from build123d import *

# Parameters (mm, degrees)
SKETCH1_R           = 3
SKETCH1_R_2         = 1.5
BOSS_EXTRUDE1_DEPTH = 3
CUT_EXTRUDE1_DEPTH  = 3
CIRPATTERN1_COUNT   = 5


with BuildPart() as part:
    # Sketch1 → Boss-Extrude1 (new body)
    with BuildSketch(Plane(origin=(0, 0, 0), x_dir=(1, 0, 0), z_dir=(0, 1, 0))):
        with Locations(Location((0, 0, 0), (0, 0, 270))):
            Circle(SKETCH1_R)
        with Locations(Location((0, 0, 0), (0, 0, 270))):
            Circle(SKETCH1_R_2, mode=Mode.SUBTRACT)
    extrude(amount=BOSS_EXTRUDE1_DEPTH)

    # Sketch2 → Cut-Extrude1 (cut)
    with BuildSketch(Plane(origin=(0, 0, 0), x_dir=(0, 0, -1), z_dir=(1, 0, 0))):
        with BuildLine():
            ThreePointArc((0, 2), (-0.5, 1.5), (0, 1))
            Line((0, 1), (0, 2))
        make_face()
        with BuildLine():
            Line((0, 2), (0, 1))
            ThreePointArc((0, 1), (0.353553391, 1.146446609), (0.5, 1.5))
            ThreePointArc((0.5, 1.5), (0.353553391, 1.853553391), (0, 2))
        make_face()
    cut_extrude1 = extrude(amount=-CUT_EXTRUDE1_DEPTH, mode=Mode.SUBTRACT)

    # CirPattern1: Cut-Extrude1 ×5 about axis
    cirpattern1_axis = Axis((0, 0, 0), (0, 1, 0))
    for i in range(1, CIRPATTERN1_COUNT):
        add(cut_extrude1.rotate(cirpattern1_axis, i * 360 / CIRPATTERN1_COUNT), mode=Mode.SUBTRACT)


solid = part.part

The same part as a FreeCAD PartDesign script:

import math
import FreeCAD as App
import Part
import Sketcher

V = App.Vector
Q = App.Units.Quantity

doc = App.newDocument("Part")
body = doc.addObject("PartDesign::Body", "Body")

sketch1 = body.newObject("Sketcher::SketchObject", "Sketch")
sketch1.AttachmentSupport = (doc.getObject("XZ_Plane"), [""])
sketch1.MapMode = "FlatFace"
sketch1.addGeometry([
    Part.Circle(V(0, 0, 0), V(0, 0, 1), 3),
    Part.Circle(V(0, 0, 0), V(0, 0, 1), 1.5),
], False)
sketch1.addConstraint([
    Sketcher.Constraint("Coincident", 0, 3, -1, 1),
    Sketcher.Constraint("Coincident", 1, 3, -1, 1),
    Sketcher.Constraint("Diameter", 0, Q("6 mm")),
    Sketcher.Constraint("Diameter", 1, Q("3 mm")),
])
pad1 = body.newObject("PartDesign::Pad", "Pad")
pad1.Profile = sketch1
pad1.Length = 3
pad1.Reversed = True

sketch2 = body.newObject("Sketcher::SketchObject", "Sketch001")
sketch2.AttachmentSupport = (doc.getObject("YZ_Plane"), [""])
sketch2.MapMode = "FlatFace"
sketch2.addGeometry([
    Part.ArcOfCircle(Part.Circle(V(1.5, 0, 0), V(0, 0, 1), 0.5), math.radians(0), math.radians(180)),
    Part.ArcOfCircle(Part.Circle(V(1.5, 0, 0), V(0, 0, 1), 0.5), math.radians(180), math.radians(270)),
    Part.ArcOfCircle(Part.Circle(V(1.5, 0, 0), V(0, 0, 1), 0.5), math.radians(-90), math.radians(0)),
], False)
sketch2.addConstraint([
    Sketcher.Constraint("Tangent", 0, 2, 1, 1),
    Sketcher.Constraint("Tangent", 1, 2, 2, 1),
    Sketcher.Constraint("Tangent", 2, 2, 0, 1),
    Sketcher.Constraint("PointOnObject", 0, 3, -1),
    Sketcher.Constraint("PointOnObject", 0, 2, -1),
    Sketcher.Constraint("PointOnObject", 2, 2, -1),
    Sketcher.Constraint("Vertical", 2, 3, 1, 2),
    Sketcher.Constraint("Radius", 0, Q("0.5 mm")),
    Sketcher.Constraint("DistanceX", -1, 1, 0, 2, Q("1 mm")),
])
pocket1 = body.newObject("PartDesign::Pocket", "Pocket")
pocket1.Profile = sketch2
pocket1.Length = 3
doc.recompute()

polarpattern = body.newObject("PartDesign::PolarPattern", "PolarPattern")
polarpattern.Originals = [pocket1]
polarpattern.Axis = (doc.getObject("Y_Axis"), [""])
polarpattern.Angle = 360
polarpattern.Occurrences = 5
body.Tip = polarpattern

doc.recompute()
